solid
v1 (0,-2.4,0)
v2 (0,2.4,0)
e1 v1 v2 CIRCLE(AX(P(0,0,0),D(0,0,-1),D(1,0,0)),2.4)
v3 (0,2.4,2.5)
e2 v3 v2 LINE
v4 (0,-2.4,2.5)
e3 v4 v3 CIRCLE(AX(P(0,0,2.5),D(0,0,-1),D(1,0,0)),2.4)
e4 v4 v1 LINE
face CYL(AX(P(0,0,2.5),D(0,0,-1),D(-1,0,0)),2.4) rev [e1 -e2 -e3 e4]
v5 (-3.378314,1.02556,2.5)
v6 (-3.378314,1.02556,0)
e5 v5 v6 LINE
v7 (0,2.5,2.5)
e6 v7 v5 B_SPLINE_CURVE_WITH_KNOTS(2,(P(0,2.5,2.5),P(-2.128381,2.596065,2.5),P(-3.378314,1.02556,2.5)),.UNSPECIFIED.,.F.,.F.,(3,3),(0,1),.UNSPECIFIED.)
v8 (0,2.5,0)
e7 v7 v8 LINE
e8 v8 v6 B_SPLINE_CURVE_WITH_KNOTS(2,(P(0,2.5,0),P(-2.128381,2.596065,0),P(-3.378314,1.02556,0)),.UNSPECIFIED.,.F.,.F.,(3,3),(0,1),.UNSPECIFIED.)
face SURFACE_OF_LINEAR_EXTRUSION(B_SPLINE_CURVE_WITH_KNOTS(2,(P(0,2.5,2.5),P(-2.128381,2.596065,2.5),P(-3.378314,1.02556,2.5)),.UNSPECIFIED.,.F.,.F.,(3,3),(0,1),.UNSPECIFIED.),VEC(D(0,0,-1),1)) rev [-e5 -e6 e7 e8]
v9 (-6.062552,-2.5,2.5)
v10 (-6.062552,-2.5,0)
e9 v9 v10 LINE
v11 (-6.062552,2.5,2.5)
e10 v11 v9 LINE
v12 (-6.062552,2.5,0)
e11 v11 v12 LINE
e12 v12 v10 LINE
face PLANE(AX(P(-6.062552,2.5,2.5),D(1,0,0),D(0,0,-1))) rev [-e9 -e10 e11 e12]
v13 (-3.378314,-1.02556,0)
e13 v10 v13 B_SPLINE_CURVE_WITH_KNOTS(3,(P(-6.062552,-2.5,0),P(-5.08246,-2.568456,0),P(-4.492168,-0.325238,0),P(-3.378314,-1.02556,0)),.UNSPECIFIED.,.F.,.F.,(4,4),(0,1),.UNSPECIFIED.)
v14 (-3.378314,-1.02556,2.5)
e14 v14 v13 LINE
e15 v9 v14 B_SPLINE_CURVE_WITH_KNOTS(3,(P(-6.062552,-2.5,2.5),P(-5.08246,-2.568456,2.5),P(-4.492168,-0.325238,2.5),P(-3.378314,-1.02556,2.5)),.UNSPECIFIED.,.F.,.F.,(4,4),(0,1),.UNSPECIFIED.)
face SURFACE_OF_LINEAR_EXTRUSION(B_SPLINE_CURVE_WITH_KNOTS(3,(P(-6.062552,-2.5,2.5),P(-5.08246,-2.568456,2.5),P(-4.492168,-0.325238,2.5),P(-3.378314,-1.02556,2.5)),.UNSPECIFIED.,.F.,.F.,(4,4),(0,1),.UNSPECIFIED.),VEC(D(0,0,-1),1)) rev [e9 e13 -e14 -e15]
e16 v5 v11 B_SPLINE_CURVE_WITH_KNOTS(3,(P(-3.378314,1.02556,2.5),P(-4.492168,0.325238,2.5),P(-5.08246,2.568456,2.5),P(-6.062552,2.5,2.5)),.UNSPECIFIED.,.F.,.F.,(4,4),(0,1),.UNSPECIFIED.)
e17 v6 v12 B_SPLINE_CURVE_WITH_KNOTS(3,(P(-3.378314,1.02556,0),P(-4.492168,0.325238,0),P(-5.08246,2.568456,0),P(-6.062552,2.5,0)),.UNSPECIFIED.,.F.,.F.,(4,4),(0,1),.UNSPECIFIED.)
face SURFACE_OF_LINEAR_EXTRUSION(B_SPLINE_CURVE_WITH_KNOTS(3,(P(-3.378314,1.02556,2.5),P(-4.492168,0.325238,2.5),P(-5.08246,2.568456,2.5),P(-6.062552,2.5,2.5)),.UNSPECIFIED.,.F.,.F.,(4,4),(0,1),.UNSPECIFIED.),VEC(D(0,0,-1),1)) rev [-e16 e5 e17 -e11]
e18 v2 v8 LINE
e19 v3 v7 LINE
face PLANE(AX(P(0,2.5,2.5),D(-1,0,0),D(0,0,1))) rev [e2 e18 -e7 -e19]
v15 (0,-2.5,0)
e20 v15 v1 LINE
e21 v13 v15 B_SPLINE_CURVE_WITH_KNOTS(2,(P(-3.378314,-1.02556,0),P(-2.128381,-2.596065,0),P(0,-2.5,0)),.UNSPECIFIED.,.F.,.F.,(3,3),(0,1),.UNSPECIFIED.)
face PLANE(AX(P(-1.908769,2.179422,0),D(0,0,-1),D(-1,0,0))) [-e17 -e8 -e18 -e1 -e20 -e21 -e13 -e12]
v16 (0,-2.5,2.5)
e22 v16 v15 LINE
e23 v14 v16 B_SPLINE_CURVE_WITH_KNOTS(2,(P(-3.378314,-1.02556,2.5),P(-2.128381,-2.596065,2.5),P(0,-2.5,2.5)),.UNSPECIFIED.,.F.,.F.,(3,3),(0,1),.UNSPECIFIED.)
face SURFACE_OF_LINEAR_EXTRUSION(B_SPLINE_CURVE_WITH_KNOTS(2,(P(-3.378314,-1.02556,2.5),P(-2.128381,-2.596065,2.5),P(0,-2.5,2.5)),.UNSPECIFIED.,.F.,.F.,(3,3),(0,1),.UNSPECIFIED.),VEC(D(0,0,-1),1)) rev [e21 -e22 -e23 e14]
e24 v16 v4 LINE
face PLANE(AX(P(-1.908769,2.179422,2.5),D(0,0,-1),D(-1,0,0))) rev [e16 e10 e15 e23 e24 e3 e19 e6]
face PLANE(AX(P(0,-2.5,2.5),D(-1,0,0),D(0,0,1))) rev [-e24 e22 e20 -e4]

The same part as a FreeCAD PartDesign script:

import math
import FreeCAD as App
import Part
import Sketcher
Q = App.Units.Quantity

doc = App.newDocument("Part")
params = doc.addObject("Spreadsheet::Sheet", "Params")
for row, (alias, value) in enumerate([
    ("sketch1_radius", "2.4 mm"),
    ("pad1_length", "2.5 mm"),
], start=1):
    params.set(f"A{row}", alias)
    params.set(f"B{row}", "=" + value)
    params.setAlias(f"B{row}", alias)

body = doc.addObject("PartDesign::Body", "Body")

sketch1 = doc.addObject("Sketcher::SketchObject", "Sketch")
body.addObject(sketch1)
sketch1.AttachmentSupport = (doc.XY_Plane, [""])
sketch1.MapMode = "FlatFace"
sketch1.addGeometry(Part.LineSegment(App.Vector(-6.062552, 2.5, 0), App.Vector(-6.062552, -2.5, 0)), False)
sketch1.addGeometry(Part.BSplineCurve([App.Vector(-3.378314, -1.02556, 0), App.Vector(-4.492168, -0.325238, 0), App.Vector(-5.08246, -2.568456, 0), App.Vector(-6.062552, -2.5, 0)], [4, 4], [0, 1], False, 3, [1, 1, 1, 1], False), False)
sketch1.addGeometry(Part.BSplineCurve([App.Vector(0, -2.5, 0), App.Vector(-2.128381, -2.596065, 0), App.Vector(-3.378314, -1.02556, 0)], [3, 3], [0, 1], False, 2, [1, 1, 1], False), False)
sketch1.addGeometry(Part.LineSegment(App.Vector(0, -2.5, 0), App.Vector(0, -2.4, 0)), False)
sketch1.addGeometry(Part.ArcOfCircle(Part.Circle(App.Vector(0, 0, 0), App.Vector(0, 0, 1), 2.4), math.radians(90), math.radians(270)), False)
sketch1.addGeometry(Part.LineSegment(App.Vector(0, 2.4, 0), App.Vector(0, 2.5, 0)), False)
sketch1.addGeometry(Part.BSplineCurve([App.Vector(0, 2.5, 0), App.Vector(-2.128381, 2.596065, 0), App.Vector(-3.378314, 1.02556, 0)], [3, 3], [0, 1], False, 2, [1, 1, 1], False), False)
sketch1.addGeometry(Part.BSplineCurve([App.Vector(-3.378314, 1.02556, 0), App.Vector(-4.492168, 0.325238, 0), App.Vector(-5.08246, 2.568456, 0), App.Vector(-6.062552, 2.5, 0)], [4, 4], [0, 1], False, 3, [1, 1, 1, 1], False), False)
sketch1.addConstraint(Sketcher.Constraint("Block", 1))
sketch1.addConstraint(Sketcher.Constraint("Block", 2))
sketch1.addConstraint(Sketcher.Constraint("Block", 6))
sketch1.addConstraint(Sketcher.Constraint("Block", 7))
sketch1.addConstraint(Sketcher.Constraint("Coincident", 0, 2, 1, 2))
sketch1.addConstraint(Sketcher.Constraint("Coincident", 2, 1, 3, 1))
sketch1.addConstraint(Sketcher.Constraint("Coincident", 3, 2, 4, 2))
sketch1.addConstraint(Sketcher.Constraint("Coincident", 4, 1, 5, 1))
sketch1.addConstraint(Sketcher.Constraint("Coincident", 5, 2, 6, 1))
sketch1.addConstraint(Sketcher.Constraint("Coincident", 7, 2, 0, 1))
sketch1.addConstraint(Sketcher.Constraint("Vertical", 3))
sketch1.addConstraint(Sketcher.Constraint("Vertical", 5))
sketch1.addConstraint(Sketcher.Constraint("Coincident", 4, 3, -1, 1))
sketch1.addConstraint(Sketcher.Constraint("Radius", 4, Q("2.4 mm")))
sketch1.setExpression("Constraints[13]", "Params.sketch1_radius")
pad1 = doc.addObject("PartDesign::Pad", "Pad")
body.addObject(pad1)
pad1.Profile = sketch1
pad1.setExpression("Length", "Params.pad1_length")

doc.recompute()
